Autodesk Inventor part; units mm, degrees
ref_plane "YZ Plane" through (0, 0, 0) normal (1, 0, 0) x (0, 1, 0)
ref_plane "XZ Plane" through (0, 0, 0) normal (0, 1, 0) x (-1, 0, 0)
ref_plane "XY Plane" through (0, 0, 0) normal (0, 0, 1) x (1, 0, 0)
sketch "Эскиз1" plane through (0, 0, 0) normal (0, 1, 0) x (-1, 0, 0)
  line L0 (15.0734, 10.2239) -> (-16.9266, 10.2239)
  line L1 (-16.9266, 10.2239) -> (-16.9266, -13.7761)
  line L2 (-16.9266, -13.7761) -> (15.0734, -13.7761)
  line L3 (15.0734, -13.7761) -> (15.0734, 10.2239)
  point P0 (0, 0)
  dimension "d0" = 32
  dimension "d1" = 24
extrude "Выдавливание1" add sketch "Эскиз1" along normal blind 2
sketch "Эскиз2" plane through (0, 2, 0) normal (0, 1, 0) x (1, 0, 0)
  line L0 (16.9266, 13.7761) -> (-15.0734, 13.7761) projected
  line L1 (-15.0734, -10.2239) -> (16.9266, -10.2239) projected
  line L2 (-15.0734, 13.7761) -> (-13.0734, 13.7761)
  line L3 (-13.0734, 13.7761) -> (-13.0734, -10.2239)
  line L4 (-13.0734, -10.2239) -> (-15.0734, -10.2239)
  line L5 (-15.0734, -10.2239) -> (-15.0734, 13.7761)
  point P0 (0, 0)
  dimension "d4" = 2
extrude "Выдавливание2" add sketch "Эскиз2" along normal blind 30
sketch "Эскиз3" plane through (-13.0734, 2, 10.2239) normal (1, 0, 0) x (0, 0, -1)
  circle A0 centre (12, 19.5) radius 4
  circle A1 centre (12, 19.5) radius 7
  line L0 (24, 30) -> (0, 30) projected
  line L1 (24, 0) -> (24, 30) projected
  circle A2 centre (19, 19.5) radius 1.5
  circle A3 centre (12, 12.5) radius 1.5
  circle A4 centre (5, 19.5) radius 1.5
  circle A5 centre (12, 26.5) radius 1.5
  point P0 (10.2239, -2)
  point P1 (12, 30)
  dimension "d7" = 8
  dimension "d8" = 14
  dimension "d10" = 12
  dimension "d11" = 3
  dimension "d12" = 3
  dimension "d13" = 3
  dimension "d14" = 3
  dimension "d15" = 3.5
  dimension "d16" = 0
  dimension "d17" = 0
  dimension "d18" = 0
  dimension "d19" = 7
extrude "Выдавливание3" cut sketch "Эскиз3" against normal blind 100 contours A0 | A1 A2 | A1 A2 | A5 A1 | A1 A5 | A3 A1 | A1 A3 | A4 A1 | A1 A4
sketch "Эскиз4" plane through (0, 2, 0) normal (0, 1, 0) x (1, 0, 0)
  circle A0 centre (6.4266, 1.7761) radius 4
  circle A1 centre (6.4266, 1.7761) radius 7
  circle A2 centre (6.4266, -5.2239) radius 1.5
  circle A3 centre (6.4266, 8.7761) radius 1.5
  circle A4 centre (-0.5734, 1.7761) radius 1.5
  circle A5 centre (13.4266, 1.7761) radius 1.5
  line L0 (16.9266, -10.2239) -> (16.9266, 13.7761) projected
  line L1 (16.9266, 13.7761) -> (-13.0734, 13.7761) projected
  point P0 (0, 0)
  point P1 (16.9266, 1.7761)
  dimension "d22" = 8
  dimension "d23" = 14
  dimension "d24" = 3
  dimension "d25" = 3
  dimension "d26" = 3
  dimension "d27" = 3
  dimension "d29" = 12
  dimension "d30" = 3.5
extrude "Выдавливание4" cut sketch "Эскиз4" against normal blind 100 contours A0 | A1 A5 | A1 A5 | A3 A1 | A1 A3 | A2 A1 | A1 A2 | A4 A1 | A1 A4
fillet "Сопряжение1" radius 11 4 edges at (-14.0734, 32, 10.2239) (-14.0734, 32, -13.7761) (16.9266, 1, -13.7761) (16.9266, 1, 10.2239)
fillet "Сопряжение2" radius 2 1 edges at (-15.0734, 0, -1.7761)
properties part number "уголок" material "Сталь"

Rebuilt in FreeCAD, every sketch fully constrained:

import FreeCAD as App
import Part
import Sketcher

V = App.Vector


def edges_at(feature, points):
    """Names of the edges that pass closest to the given points."""
    edges = feature.Shape.Edges
    near = lambda p: min(range(len(edges)), key=lambda i: edges[i].distToShape(Part.Vertex(*p))[0])
    return sorted({f"Edge{near(p) + 1}" for p in points})

doc = App.newDocument("Part")
body = doc.addObject("PartDesign::Body", "Body")

sketch1 = doc.addObject("Sketcher::SketchObject", "Sketch")
body.addObject(sketch1)
sketch1.AttachmentSupport = (doc.XZ_Plane, [""])
sketch1.MapMode = "FlatFace"
sketch1.addGeometry(Part.LineSegment(V(-15.0734, -13.7761, 0), V(-15.0734, 10.2239, 0)), False)
sketch1.addGeometry(Part.LineSegment(V(-15.0734, 10.2239, 0), V(16.9266, 10.2239, 0)), False)
sketch1.addGeometry(Part.LineSegment(V(16.9266, 10.2239, 0), V(16.9266, -13.7761, 0)), False)
sketch1.addGeometry(Part.LineSegment(V(16.9266, -13.7761, 0), V(-15.0734, -13.7761, 0)), False)
sketch1.addConstraint(Sketcher.Constraint("Coincident", 0, 2, 1, 1))
sketch1.addConstraint(Sketcher.Constraint("Coincident", 1, 2, 2, 1))
sketch1.addConstraint(Sketcher.Constraint("Coincident", 2, 2, 3, 1))
sketch1.addConstraint(Sketcher.Constraint("Coincident", 3, 2, 0, 1))
sketch1.addConstraint(Sketcher.Constraint("Vertical", 0))
sketch1.addConstraint(Sketcher.Constraint("Horizontal", 1))
sketch1.addConstraint(Sketcher.Constraint("Vertical", 2))
sketch1.addConstraint(Sketcher.Constraint("Horizontal", 3))
sketch1.addConstraint(Sketcher.Constraint("DistanceX", 1, 1, 1, 2, 32.0))
sketch1.addConstraint(Sketcher.Constraint("DistanceY", 0, 1, 0, 2, 24.0))
sketch1.addConstraint(Sketcher.Constraint("DistanceY", -1, 1, 0, 2, 10.224))
sketch1.addConstraint(Sketcher.Constraint("DistanceX", 0, 2, -1, 1, 15.0734))
pad1 = doc.addObject("PartDesign::Pad", "Pad")
body.addObject(pad1)
pad1.Profile = sketch1
pad1.Length = 2
pad1.Reversed = True

sketch2 = doc.addObject("Sketcher::SketchObject", "Sketch001")
body.addObject(sketch2)
sketch2.AttachmentSupport = (doc.XZ_Plane, [""])
sketch2.MapMode = "FlatFace"
sketch2.AttachmentOffset = App.Placement(V(0, 0, -2), App.Rotation())
sketch2.addGeometry(Part.LineSegment(V(-13.0734, 10.2239, 0), V(-13.0734, -13.7761, 0)), False)
sketch2.addGeometry(Part.LineSegment(V(-13.0734, -13.7761, 0), V(-15.0734, -13.7761, 0)), False)
sketch2.addGeometry(Part.LineSegment(V(-15.0734, -13.7761, 0), V(-15.0734, 10.2239, 0)), False)
sketch2.addGeometry(Part.LineSegment(V(-15.0734, 10.2239, 0), V(-13.0734, 10.2239, 0)), False)
sketch2.addConstraint(Sketcher.Constraint("Coincident", 0, 2, 1, 1))
sketch2.addConstraint(Sketcher.Constraint("Coincident", 1, 2, 2, 1))
sketch2.addConstraint(Sketcher.Constraint("Coincident", 2, 2, 3, 1))
sketch2.addConstraint(Sketcher.Constraint("Coincident", 3, 2, 0, 1))
sketch2.addConstraint(Sketcher.Constraint("Vertical", 0))
sketch2.addConstraint(Sketcher.Constraint("Horizontal", 1))
sketch2.addConstraint(Sketcher.Constraint("Vertical", 2))
sketch2.addConstraint(Sketcher.Constraint("Horizontal", 3))
sketch2.addConstraint(Sketcher.Constraint("DistanceX", 1, 2, 1, 1, 2.0))
sketch2.addConstraint(Sketcher.Constraint("DistanceY", 0, 2, 0, 1, 24.0))
sketch2.addConstraint(Sketcher.Constraint("DistanceY", 0, 2, -1, 1, 13.776))
sketch2.addConstraint(Sketcher.Constraint("DistanceX", 0, 2, -1, 1, 13.0734))
pad2 = doc.addObject("PartDesign::Pad", "Pad001")
body.addObject(pad2)
pad2.Profile = sketch2
pad2.Length = 30
pad2.Reversed = True

sketch3 = doc.addObject("Sketcher::SketchObject", "Sketch002")
body.addObject(sketch3)
sketch3.AttachmentSupport = (doc.YZ_Plane, [""])
sketch3.MapMode = "FlatFace"
sketch3.AttachmentOffset = App.Placement(V(0, 0, -13.0734), App.Rotation())
sketch3.addGeometry(Part.Circle(V(21.5, -1.7761, 0), V(0, 0, 1), 4), False)
sketch3.addGeometry(Part.Circle(V(21.5, -8.7761, 0), V(0, 0, 1), 1.5), False)
sketch3.addGeometry(Part.Circle(V(28.5, -1.7761, 0), V(0, 0, 1), 1.5), False)
sketch3.addGeometry(Part.Circle(V(14.5, -1.7761, 0), V(0, 0, 1), 1.5), False)
sketch3.addGeometry(Part.Circle(V(21.5, 5.2239, 0), V(0, 0, 1), 1.5), False)
sketch3.addConstraint(Sketcher.Constraint("Equal", 1, 2))
sketch3.addConstraint(Sketcher.Constraint("Equal", 2, 3))
sketch3.addConstraint(Sketcher.Constraint("Equal", 3, 4))
sketch3.addConstraint(Sketcher.Constraint("Horizontal", 0, 3, 2, 3))
sketch3.addConstraint(Sketcher.Constraint("Horizontal", 2, 3, 3, 3))
sketch3.addConstraint(Sketcher.Constraint("Vertical", 0, 3, 1, 3))
sketch3.addConstraint(Sketcher.Constraint("Vertical", 1, 3, 4, 3))
sketch3.addConstraint(Sketcher.Constraint("Diameter", 0, 8.0))
sketch3.addConstraint(Sketcher.Constraint("Diameter", 1, 3.0))
sketch3.addConstraint(Sketcher.Constraint("DistanceY", 1, 3, 0, 3, 7.0))
sketch3.addConstraint(Sketcher.Constraint("DistanceX", 0, 3, 2, 3, 7.0))
sketch3.addConstraint(Sketcher.Constraint("DistanceX", 3, 3, 0, 3, 7.0))
sketch3.addConstraint(Sketcher.Constraint("DistanceY", 0, 3, 4, 3, 7.0))
sketch3.addConstraint(Sketcher.Constraint("DistanceX", -1, 1, 0, 3, 21.5))
sketch3.addConstraint(Sketcher.Constraint("DistanceY", 0, 3, -1, 1, 1.776))
pocket1 = doc.addObject("PartDesign::Pocket", "Pocket")
body.addObject(pocket1)
pocket1.Profile = sketch3
pocket1.Length = 100

sketch4 = doc.addObject("Sketcher::SketchObject", "Sketch003")
body.addObject(sketch4)
sketch4.AttachmentSupport = (doc.XZ_Plane, [""])
sketch4.MapMode = "FlatFace"
sketch4.AttachmentOffset = App.Placement(V(0, 0, -2), App.Rotation())
sketch4.addGeometry(Part.Circle(V(6.4266, -1.7761, 0), V(0, 0, 1), 4), False)
sketch4.addGeometry(Part.Circle(V(13.4266, -1.7761, 0), V(0, 0, 1), 1.5), False)
sketch4.addGeometry(Part.Circle(V(6.4266, -8.7761, 0), V(0, 0, 1), 1.5), False)
sketch4.addGeometry(Part.Circle(V(6.4266, 5.2239, 0), V(0, 0, 1), 1.5), False)
sketch4.addGeometry(Part.Circle(V(-0.5734, -1.7761, 0), V(0, 0, 1), 1.5), False)
sketch4.addConstraint(Sketcher.Constraint("Equal", 1, 2))
sketch4.addConstraint(Sketcher.Constraint("Equal", 2, 3))
sketch4.addConstraint(Sketcher.Constraint("Equal", 3, 4))
sketch4.addConstraint(Sketcher.Constraint("Horizontal", 0, 3, 1, 3))
sketch4.addConstraint(Sketcher.Constraint("Horizontal", 1, 3, 4, 3))
sketch4.addConstraint(Sketcher.Constraint("Vertical", 0, 3, 2, 3))
sketch4.addConstraint(Sketcher.Constraint("Vertical", 2, 3, 3, 3))
sketch4.addConstraint(Sketcher.Constraint("Diameter", 0, 8.0))
sketch4.addConstraint(Sketcher.Constraint("Diameter", 1, 3.0))
sketch4.addConstraint(Sketcher.Constraint("DistanceY", 2, 3, 3, 3, 14.0))
sketch4.addConstraint(Sketcher.Constraint("DistanceX", 4, 3, 1, 3, 14.0))
sketch4.addConstraint(Sketcher.Constraint("DistanceX", 0, 3, 1, 3, 7.0))
sketch4.addConstraint(Sketcher.Constraint("DistanceY", 2, 3, 0, 3, 7.0))
sketch4.addConstraint(Sketcher.Constraint("DistanceY", 0, 3, -1, 1, 1.776))
sketch4.addConstraint(Sketcher.Constraint("DistanceX", -1, 1, 0, 3, 6.4266))
pocket2 = doc.addObject("PartDesign::Pocket", "Pocket001")
body.addObject(pocket2)
pocket2.Profile = sketch4
pocket2.Length = 100
pocket2.Reversed = True
doc.recompute()

fillet = doc.addObject("PartDesign::Fillet", "Fillet")
body.addObject(fillet)
fillet.Base = (pocket2, edges_at(pocket2, [
    (-14.073, 32, 10.224),
    (-14.073, 32, -13.776),
    (16.927, 1, -13.776),
    (16.927, 1, 10.224),
]))
fillet.Radius = 11
doc.recompute()

fillet2 = doc.addObject("PartDesign::Fillet", "Fillet001")
body.addObject(fillet2)
fillet2.Base = (fillet, edges_at(fillet, [(-15.073, 0, -1.776)]))
fillet2.Radius = 2

doc.recompute()
